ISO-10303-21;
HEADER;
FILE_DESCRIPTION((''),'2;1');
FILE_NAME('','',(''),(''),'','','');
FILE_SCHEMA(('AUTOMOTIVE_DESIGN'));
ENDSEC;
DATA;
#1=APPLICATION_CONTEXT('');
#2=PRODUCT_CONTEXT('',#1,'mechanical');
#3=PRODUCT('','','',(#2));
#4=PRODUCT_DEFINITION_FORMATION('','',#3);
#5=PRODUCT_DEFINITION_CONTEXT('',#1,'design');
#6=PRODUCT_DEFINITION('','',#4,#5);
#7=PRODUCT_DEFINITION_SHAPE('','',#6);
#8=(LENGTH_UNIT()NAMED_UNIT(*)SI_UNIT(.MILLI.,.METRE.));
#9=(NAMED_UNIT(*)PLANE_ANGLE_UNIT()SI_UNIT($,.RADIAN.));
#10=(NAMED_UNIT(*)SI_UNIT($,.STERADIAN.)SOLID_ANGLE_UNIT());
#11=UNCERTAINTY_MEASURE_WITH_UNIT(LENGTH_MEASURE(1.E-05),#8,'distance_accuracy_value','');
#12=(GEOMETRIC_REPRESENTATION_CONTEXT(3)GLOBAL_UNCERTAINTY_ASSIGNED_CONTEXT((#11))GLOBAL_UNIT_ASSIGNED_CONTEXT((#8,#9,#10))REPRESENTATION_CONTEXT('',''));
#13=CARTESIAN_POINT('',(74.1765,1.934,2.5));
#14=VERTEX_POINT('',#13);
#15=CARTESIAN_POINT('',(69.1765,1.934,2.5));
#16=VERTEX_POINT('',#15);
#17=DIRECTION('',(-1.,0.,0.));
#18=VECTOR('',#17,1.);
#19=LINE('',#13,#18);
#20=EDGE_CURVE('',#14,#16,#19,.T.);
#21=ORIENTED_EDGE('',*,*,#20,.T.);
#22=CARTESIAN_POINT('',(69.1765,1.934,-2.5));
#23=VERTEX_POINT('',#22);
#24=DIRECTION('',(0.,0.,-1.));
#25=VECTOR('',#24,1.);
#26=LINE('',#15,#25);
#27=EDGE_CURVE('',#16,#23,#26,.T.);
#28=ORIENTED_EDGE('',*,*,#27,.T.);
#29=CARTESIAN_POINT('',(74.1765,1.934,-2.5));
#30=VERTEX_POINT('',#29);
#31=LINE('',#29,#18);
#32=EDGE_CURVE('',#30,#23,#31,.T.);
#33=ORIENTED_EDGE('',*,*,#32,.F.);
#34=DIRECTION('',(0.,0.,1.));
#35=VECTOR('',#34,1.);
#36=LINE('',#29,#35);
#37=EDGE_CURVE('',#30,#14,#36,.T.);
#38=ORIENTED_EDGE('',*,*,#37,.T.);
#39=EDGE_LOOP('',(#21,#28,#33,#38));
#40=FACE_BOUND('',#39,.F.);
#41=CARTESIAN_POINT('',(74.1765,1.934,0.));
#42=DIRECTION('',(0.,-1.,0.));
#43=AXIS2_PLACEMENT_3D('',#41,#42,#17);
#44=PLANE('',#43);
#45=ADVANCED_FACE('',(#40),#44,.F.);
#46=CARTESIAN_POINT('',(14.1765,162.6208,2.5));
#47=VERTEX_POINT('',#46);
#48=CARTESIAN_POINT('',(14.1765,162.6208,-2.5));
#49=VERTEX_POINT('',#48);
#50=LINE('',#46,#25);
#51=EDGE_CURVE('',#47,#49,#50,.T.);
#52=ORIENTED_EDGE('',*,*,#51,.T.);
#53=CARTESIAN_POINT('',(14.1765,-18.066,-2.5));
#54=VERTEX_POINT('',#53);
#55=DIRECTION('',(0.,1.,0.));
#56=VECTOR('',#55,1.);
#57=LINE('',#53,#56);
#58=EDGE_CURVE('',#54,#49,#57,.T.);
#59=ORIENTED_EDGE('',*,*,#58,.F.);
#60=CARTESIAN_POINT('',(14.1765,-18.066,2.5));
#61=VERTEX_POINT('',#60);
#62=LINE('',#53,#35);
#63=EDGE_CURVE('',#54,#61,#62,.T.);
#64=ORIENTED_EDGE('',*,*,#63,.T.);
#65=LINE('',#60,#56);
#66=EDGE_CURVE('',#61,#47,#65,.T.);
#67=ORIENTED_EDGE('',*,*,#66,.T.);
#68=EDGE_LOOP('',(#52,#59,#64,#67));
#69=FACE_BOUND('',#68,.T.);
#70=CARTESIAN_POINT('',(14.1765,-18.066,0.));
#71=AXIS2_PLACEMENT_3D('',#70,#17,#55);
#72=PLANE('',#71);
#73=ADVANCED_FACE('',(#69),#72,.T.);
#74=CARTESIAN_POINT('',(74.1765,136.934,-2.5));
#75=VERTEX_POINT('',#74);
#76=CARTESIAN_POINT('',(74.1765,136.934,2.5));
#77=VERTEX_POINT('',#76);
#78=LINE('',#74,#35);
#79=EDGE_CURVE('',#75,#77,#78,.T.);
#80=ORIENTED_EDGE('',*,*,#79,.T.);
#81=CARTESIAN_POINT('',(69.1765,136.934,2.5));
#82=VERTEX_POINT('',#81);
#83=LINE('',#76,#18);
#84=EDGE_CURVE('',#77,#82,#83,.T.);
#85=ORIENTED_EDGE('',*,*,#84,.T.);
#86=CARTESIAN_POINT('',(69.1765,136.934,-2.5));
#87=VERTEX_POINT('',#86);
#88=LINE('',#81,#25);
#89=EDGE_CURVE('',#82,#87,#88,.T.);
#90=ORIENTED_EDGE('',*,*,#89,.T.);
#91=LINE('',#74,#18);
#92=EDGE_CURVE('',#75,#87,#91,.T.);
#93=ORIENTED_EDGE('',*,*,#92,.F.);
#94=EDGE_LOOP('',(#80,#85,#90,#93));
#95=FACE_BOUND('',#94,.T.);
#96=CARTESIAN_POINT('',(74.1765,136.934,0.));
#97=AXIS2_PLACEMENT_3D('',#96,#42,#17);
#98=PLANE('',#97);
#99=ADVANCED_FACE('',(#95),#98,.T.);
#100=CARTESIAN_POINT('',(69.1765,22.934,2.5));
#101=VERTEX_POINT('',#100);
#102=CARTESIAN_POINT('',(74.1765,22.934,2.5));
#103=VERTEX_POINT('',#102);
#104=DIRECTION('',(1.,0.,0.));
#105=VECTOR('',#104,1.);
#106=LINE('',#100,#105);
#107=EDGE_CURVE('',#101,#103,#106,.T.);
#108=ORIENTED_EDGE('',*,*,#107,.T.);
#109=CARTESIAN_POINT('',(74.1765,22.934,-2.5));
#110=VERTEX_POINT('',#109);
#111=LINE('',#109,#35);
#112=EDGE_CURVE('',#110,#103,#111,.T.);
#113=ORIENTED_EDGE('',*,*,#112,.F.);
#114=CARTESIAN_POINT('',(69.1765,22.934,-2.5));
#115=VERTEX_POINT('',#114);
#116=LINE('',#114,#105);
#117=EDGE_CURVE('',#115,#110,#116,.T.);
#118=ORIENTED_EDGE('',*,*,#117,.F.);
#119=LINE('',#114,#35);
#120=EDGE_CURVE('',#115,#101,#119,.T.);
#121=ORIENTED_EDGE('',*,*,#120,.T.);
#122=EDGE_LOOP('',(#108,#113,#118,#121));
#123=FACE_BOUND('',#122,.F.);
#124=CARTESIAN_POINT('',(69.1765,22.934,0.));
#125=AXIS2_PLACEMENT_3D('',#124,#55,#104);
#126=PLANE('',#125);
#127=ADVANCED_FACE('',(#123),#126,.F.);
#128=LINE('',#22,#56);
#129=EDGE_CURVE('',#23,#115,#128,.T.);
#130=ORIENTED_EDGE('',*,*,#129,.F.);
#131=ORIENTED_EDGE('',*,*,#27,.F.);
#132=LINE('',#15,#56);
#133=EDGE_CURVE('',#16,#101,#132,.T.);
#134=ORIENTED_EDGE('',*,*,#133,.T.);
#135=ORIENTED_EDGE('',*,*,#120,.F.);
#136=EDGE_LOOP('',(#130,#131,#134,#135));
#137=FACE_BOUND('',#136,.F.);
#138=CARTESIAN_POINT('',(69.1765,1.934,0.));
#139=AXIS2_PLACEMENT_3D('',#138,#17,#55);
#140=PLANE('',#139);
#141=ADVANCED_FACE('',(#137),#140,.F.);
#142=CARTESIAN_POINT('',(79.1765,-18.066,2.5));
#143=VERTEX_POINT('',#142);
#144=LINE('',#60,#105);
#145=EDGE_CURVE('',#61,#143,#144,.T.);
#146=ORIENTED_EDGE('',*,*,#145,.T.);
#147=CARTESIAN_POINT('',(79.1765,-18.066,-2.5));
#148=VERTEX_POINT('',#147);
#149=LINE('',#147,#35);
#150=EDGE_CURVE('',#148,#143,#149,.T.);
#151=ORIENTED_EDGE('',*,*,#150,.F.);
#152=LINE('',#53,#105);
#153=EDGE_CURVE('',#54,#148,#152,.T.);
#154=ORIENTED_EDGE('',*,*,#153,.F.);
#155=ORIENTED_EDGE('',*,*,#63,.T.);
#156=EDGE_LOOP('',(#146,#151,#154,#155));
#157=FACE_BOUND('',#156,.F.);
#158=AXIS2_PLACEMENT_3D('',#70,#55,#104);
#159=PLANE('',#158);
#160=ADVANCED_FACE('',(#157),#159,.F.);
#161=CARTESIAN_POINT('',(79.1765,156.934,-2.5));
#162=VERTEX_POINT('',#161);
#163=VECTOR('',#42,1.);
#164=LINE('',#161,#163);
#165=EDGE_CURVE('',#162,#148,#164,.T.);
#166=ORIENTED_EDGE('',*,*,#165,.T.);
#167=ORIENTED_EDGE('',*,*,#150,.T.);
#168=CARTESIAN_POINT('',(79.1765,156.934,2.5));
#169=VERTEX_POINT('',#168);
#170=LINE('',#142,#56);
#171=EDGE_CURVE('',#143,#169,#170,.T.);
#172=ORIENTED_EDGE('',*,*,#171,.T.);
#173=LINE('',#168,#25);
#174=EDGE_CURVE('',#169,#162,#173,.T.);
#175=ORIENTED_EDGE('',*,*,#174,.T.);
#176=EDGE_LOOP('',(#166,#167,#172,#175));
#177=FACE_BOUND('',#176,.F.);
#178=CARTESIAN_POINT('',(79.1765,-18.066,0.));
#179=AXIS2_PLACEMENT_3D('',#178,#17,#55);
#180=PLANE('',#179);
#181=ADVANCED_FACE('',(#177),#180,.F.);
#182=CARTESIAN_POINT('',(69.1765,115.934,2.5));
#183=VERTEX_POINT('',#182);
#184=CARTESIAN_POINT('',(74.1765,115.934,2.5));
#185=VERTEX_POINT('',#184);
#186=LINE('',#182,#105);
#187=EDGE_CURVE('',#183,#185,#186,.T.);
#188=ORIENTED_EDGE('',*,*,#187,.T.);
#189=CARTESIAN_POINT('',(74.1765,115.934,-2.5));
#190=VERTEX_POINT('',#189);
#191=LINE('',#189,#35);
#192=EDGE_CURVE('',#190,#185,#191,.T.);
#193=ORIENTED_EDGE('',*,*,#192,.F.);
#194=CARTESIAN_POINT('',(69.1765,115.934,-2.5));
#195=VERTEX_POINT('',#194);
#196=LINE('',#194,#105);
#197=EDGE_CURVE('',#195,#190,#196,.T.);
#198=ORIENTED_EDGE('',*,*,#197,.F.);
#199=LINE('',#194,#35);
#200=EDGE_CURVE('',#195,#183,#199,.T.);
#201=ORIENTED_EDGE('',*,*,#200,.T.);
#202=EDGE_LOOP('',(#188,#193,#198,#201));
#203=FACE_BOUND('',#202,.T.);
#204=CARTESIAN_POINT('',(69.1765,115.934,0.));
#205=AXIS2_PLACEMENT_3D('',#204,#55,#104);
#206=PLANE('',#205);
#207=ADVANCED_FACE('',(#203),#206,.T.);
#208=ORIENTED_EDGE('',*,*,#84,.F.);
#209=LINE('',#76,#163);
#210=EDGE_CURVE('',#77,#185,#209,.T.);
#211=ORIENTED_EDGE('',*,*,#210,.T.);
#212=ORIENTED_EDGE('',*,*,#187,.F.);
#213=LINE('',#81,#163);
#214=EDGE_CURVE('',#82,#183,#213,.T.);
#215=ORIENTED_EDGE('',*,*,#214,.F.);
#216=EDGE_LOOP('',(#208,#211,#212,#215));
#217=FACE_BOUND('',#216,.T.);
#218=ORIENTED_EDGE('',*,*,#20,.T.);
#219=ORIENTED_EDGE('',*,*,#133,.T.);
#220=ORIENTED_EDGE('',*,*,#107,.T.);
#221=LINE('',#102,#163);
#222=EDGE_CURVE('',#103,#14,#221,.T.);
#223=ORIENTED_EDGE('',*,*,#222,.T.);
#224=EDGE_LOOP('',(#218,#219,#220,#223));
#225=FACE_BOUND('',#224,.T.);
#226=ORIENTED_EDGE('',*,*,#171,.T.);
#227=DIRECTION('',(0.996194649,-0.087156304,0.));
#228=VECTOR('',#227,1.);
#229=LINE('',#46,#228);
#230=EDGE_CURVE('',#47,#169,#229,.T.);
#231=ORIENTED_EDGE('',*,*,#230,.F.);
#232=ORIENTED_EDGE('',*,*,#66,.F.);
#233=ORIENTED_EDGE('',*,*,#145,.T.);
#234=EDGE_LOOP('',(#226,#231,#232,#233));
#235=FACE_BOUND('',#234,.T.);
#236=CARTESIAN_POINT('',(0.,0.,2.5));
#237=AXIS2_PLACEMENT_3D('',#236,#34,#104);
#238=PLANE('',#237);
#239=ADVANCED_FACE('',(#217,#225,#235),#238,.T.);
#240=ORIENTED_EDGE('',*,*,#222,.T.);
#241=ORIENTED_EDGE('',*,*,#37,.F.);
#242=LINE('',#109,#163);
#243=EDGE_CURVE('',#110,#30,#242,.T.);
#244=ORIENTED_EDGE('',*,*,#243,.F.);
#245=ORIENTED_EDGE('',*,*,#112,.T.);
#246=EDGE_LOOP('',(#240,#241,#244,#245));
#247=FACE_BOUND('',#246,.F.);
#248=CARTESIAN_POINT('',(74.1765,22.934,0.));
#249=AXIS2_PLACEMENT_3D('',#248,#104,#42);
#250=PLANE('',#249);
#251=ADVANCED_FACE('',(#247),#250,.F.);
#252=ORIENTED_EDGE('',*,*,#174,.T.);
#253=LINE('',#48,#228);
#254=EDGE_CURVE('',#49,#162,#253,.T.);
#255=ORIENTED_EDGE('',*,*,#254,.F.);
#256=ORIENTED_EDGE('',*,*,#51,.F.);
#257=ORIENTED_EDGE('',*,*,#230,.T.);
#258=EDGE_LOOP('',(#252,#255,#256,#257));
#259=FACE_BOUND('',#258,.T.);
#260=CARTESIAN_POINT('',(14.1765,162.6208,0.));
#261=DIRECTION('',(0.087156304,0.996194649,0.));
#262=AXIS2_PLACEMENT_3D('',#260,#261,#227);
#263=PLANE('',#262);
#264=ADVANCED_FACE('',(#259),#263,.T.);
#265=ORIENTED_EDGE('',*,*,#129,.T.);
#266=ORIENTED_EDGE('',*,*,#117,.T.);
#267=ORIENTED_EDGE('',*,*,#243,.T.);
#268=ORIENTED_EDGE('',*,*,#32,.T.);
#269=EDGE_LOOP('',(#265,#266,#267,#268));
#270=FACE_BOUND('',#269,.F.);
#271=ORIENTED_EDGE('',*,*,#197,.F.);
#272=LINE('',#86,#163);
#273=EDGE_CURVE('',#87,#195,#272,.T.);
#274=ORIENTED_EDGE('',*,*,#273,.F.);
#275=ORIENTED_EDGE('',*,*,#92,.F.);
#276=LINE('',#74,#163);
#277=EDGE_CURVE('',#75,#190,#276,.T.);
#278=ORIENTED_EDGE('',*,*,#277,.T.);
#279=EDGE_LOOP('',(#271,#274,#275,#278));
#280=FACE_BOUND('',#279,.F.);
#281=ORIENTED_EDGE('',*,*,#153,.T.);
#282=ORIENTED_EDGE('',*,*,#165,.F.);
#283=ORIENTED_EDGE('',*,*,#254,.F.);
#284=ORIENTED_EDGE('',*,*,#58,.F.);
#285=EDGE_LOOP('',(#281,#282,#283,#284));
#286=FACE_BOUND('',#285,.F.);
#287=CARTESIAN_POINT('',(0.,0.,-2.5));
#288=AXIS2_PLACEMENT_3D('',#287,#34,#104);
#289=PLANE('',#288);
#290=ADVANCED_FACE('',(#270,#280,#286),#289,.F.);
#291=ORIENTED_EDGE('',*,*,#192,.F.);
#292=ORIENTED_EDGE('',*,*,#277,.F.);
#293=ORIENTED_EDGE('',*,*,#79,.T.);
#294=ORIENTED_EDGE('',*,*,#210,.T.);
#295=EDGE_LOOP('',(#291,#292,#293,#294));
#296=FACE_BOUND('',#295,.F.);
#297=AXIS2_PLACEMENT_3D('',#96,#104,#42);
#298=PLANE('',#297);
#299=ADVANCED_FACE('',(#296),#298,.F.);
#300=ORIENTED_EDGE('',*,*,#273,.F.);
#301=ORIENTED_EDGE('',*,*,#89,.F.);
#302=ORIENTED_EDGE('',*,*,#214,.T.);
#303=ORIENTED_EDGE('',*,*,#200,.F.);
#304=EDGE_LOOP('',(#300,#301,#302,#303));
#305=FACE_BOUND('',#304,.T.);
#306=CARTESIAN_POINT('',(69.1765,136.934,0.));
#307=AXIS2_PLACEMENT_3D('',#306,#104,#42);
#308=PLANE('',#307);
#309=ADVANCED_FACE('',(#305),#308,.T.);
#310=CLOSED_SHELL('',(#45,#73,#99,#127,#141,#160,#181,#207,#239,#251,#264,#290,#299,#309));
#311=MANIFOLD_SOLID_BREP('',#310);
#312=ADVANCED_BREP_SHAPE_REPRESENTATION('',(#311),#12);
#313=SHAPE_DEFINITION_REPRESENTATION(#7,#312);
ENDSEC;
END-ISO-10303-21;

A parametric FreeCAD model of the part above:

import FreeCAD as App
import Part
import Sketcher
Q = App.Units.Quantity


def add_polygon(sketch, points):
    """Adds a closed chain of lines whose ends are joined by coincident constraints."""
    first, n = sketch.GeometryCount, len(points)
    for a, b in zip(points, points[1:] + points[:1]):
        sketch.addGeometry(Part.LineSegment(App.Vector(*a, 0), App.Vector(*b, 0)), False)
    for i in range(n):
        sketch.addConstraint(Sketcher.Constraint("Coincident", first + i, 2, first + (i + 1) % n, 1))

doc = App.newDocument("Part")
params = doc.addObject("Spreadsheet::Sheet", "Params")
for row, (alias, value) in enumerate([
    ("sketch1_width", "65 mm"),
    ("sketch1_width2", "5 mm"),
    ("sketch1_height", "175 mm"),
    ("sketch1_height2", "21 mm"),
    ("pad1_length", "5 mm"),
], start=1):
    params.set(f"A{row}", alias)
    params.set(f"B{row}", "=" + value)
    params.setAlias(f"B{row}", alias)

body = doc.addObject("PartDesign::Body", "Body")

sketch1 = body.newObject("Sketcher::SketchObject", "Sketch")
sketch1.AttachmentSupport = (doc.getObject("XY_Plane"), [""])
sketch1.MapMode = "FlatFace"
add_polygon(sketch1, [(14, 163), (14, -18), (79, -18), (79, 157)])
add_polygon(sketch1, [(69, 137), (74, 137), (74, 116), (69, 116)])
add_polygon(sketch1, [(69, 2), (69, 23), (74, 23), (74, 2)])
sketch1.addConstraint(Sketcher.Constraint("Vertical", 0))
sketch1.addConstraint(Sketcher.Constraint("Horizontal", 1))
sketch1.addConstraint(Sketcher.Constraint("Vertical", 2))
sketch1.addConstraint(Sketcher.Constraint("Horizontal", 4))
sketch1.addConstraint(Sketcher.Constraint("Vertical", 5))
sketch1.addConstraint(Sketcher.Constraint("Horizontal", 6))
sketch1.addConstraint(Sketcher.Constraint("Vertical", 7))
sketch1.addConstraint(Sketcher.Constraint("Vertical", 8))
sketch1.addConstraint(Sketcher.Constraint("Horizontal", 9))
sketch1.addConstraint(Sketcher.Constraint("Vertical", 10))
sketch1.addConstraint(Sketcher.Constraint("Horizontal", 11))
sketch1.addConstraint(Sketcher.Constraint("Vertical", 7, 2, 8, 2))
sketch1.addConstraint(Sketcher.Constraint("Vertical", 5, 2, 9, 2))
sketch1.addConstraint(Sketcher.Constraint("Equal", 7, 8))
sketch1.addConstraint(Sketcher.Constraint("DistanceX", 1, 1, 1, 2, 65.0))
sketch1.addConstraint(Sketcher.Constraint("DistanceX", 4, 1, 4, 2, 5.0))
sketch1.addConstraint(Sketcher.Constraint("DistanceY", 2, 1, 2, 2, 175.0))
sketch1.addConstraint(Sketcher.Constraint("DistanceY", 5, 2, 5, 1, 21.0))
sketch1.addConstraint(Sketcher.Constraint("Angle", 3, Q("175 deg")))
sketch1.addConstraint(Sketcher.Constraint("DistanceX", 4, 2, 2, 2, 5.0))
sketch1.addConstraint(Sketcher.Constraint("DistanceY", 4, 2, 2, 2, 20.0))
sketch1.addConstraint(Sketcher.Constraint("DistanceY", 1, 2, 10, 2, 20.0))
sketch1.addConstraint(Sketcher.Constraint("DistanceY", 0, 2, -1, 1, 18.066))
sketch1.addConstraint(Sketcher.Constraint("DistanceX", -1, 1, 0, 2, 14.1765))
sketch1.setExpression("Constraints[26]", "Params.sketch1_width")
sketch1.setExpression("Constraints[27]", "Params.sketch1_width2")
sketch1.setExpression("Constraints[28]", "Params.sketch1_height")
sketch1.setExpression("Constraints[29]", "Params.sketch1_height2")
pad1 = body.newObject("PartDesign::Pad", "Pad")
pad1.Profile = sketch1
pad1.setExpression("Length", "Params.pad1_length")
pad1.Midplane = True

doc.recompute()
